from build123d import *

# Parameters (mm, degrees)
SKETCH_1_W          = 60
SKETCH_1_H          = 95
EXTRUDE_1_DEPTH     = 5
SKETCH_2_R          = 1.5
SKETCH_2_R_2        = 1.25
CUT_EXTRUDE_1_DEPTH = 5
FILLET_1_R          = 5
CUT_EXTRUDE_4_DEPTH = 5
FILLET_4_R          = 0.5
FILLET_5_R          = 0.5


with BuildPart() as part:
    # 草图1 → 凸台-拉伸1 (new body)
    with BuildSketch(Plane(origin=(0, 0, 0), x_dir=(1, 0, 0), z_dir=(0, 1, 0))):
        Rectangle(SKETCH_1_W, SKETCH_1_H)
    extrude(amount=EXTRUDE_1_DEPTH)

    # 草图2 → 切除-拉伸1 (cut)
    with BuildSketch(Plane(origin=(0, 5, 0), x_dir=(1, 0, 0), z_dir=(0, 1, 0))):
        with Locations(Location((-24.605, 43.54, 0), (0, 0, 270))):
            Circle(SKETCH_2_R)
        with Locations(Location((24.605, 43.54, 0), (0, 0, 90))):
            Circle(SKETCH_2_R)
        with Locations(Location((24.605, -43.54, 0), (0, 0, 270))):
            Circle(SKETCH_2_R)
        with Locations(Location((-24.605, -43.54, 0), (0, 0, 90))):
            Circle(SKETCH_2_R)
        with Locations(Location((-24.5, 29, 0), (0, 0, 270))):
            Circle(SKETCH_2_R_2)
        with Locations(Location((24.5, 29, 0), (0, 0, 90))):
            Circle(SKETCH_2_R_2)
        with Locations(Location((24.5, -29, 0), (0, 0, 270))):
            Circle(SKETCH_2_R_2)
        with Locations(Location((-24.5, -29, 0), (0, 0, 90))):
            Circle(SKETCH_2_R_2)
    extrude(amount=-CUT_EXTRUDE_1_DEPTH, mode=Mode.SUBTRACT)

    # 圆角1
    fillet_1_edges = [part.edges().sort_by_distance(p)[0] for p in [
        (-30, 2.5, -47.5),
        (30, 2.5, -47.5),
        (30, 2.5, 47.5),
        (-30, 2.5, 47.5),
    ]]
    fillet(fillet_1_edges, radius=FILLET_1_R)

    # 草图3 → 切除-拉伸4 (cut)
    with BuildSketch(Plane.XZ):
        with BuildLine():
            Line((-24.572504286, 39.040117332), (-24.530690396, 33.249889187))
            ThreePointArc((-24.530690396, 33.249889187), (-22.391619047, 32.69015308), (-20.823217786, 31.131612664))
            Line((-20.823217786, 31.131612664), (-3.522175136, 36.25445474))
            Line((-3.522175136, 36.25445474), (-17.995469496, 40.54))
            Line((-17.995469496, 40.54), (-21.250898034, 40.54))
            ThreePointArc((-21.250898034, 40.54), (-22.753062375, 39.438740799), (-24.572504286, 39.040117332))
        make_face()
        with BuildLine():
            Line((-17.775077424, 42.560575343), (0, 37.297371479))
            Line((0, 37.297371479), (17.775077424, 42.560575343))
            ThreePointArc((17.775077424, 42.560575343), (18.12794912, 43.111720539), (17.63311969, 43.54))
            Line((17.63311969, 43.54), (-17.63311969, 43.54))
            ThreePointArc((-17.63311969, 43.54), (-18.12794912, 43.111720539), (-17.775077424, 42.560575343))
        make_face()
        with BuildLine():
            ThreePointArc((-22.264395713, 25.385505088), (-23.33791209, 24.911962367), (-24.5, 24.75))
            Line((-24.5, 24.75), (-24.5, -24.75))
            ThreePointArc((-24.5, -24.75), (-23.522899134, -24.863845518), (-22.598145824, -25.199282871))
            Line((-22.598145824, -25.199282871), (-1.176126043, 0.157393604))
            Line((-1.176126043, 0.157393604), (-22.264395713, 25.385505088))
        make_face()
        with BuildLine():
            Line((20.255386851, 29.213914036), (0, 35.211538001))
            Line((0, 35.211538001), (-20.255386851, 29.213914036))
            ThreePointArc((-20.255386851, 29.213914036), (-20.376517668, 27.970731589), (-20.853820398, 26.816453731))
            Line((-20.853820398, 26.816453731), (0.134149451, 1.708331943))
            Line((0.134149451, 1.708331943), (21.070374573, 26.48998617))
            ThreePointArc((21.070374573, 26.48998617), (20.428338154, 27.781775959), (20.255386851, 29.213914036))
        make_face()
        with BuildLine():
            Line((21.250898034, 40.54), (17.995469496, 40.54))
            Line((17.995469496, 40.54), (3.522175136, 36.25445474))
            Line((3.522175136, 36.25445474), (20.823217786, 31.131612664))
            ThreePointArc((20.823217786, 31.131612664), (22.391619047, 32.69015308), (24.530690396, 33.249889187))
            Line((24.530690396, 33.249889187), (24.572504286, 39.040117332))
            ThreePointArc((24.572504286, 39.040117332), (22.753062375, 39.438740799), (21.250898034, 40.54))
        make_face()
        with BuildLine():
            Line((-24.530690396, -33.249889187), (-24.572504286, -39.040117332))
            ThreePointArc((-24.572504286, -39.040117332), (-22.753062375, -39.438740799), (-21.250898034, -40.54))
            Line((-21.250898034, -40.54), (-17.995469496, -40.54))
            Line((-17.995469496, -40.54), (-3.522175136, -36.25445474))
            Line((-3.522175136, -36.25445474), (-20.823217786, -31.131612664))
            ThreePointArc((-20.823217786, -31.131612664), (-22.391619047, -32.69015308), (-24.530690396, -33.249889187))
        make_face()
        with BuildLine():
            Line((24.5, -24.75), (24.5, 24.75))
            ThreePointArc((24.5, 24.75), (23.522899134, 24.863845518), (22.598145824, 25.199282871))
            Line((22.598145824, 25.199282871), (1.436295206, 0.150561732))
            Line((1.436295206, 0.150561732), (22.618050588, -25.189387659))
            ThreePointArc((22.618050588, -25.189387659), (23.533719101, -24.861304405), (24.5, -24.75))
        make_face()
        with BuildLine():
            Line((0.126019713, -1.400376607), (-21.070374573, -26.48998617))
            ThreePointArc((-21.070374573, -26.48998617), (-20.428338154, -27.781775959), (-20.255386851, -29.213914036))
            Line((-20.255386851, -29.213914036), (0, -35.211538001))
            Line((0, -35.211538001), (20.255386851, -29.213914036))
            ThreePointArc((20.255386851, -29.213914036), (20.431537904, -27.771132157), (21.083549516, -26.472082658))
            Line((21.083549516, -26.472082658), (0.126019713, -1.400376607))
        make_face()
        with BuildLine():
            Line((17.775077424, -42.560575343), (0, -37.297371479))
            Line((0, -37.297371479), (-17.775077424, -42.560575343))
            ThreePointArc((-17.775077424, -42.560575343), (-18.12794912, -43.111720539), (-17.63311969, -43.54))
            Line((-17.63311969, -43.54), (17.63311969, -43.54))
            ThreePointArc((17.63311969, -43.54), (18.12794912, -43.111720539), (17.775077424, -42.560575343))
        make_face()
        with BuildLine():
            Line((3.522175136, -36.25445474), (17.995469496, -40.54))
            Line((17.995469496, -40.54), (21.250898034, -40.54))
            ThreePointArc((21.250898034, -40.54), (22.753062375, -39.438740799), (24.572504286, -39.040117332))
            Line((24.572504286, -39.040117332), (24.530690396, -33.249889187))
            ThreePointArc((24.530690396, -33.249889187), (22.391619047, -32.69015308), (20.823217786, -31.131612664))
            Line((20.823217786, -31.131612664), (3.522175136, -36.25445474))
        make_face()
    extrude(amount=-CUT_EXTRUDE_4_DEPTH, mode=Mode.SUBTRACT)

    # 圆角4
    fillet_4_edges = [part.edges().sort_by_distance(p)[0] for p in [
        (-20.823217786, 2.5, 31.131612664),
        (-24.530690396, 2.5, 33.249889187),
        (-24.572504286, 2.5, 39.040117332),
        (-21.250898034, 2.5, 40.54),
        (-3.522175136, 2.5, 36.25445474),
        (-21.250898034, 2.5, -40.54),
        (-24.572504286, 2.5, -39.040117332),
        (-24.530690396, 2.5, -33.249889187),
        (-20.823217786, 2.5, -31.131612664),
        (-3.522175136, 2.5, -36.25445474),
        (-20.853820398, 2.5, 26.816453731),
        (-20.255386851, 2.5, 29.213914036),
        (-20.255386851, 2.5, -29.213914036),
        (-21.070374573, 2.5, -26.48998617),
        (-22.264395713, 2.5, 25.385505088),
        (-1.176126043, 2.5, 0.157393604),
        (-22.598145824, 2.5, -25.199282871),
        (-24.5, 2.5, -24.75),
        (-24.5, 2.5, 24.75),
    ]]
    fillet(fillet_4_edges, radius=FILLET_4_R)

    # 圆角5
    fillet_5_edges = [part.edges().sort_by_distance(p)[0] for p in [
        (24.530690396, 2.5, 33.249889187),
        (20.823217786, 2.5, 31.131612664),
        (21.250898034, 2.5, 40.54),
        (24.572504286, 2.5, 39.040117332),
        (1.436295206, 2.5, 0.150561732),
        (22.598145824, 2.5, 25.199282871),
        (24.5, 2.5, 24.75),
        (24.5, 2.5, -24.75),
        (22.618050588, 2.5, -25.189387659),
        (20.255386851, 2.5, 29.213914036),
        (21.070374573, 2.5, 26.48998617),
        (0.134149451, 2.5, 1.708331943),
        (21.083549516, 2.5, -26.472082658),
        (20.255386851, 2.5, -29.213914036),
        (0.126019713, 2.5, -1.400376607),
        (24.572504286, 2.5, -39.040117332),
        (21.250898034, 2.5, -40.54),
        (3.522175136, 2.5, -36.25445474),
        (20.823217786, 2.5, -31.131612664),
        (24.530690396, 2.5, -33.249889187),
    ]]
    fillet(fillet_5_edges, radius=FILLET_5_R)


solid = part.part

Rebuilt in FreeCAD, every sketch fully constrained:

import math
import FreeCAD as App
import Part
import Sketcher
from FreeCAD import Vector
Q = App.Units.Quantity


def edges_at(feature, points):
    """Names of the edges that pass closest to the given points."""
    edges = feature.Shape.Edges
    near = lambda p: min(range(len(edges)), key=lambda i: edges[i].distToShape(Part.Vertex(*p))[0])
    return sorted({f"Edge{near(p) + 1}" for p in points})


def add_polygon(sketch, points):
    """Adds a closed chain of lines whose ends are joined by coincident constraints."""
    first, n = sketch.GeometryCount, len(points)
    for a, b in zip(points, points[1:] + points[:1]):
        sketch.addGeometry(Part.LineSegment(App.Vector(*a, 0), App.Vector(*b, 0)), False)
    for i in range(n):
        sketch.addConstraint(Sketcher.Constraint("Coincident", first + i, 2, first + (i + 1) % n, 1))

doc = App.newDocument("Part")
body = doc.addObject("PartDesign::Body", "Body")

# Sketch on XZ plane
sketch1 = body.newObject("Sketcher::SketchObject", "Sketch")
sketch1.AttachmentSupport = (doc.getObject("XZ_Plane"), [""])
sketch1.MapMode = "FlatFace"
add_polygon(sketch1, [(-30, -47.5), (-30, 47.5), (30, 47.5), (30, -47.5)])  # lines 0-3
sketch1.addConstraint([
    Sketcher.Constraint("Vertical", 0),
    Sketcher.Constraint("Horizontal", 1),
    Sketcher.Constraint("Vertical", 2),
    Sketcher.Constraint("Horizontal", 3),
    Sketcher.Constraint("Symmetric", 0, 2, 2, 2, -1, 1),
    Sketcher.Constraint("DistanceX", 1, 1, 1, 2, Q("60 mm")),
    Sketcher.Constraint("DistanceY", 0, 1, 0, 2, Q("95 mm")),
])
pad1 = body.newObject("PartDesign::Pad", "Pad")
pad1.Profile = sketch1
pad1.Length = 5
pad1.Reversed = True

# Sketch on XZ plane
sketch2 = body.newObject("Sketcher::SketchObject", "Sketch001")
sketch2.AttachmentSupport = (doc.getObject("XZ_Plane"), [""])
sketch2.MapMode = "FlatFace"
sketch2.AttachmentOffset = App.Placement(Vector(0, 0, -5), App.Rotation())
sketch2.addGeometry([
    Part.Circle(Vector(-24.605, -43.54, 0), Vector(0, 0, 1), 1.5),  # 0
    Part.Circle(Vector(24.605, -43.54, 0), Vector(0, 0, 1), 1.5),  # 1
    Part.Circle(Vector(24.605, 43.54, 0), Vector(0, 0, 1), 1.5),  # 2
    Part.Circle(Vector(-24.605, 43.54, 0), Vector(0, 0, 1), 1.5),  # 3
    Part.Circle(Vector(-24.5, -29, 0), Vector(0, 0, 1), 1.25),  # 4
    Part.Circle(Vector(24.5, -29, 0), Vector(0, 0, 1), 1.25),  # 5
    Part.Circle(Vector(24.5, 29, 0), Vector(0, 0, 1), 1.25),  # 6
    Part.Circle(Vector(-24.5, 29, 0), Vector(0, 0, 1), 1.25),  # 7
], False)
sketch2.addConstraint([
    Sketcher.Constraint("Equal", 0, 1),
    Sketcher.Constraint("Equal", 1, 2),
    Sketcher.Constraint("Equal", 2, 3),
    Sketcher.Constraint("Equal", 4, 5),
    Sketcher.Constraint("Equal", 5, 6),
    Sketcher.Constraint("Equal", 6, 7),
    Sketcher.Constraint("Symmetric", 0, 3, 2, 3, -1, 1),
    Sketcher.Constraint("Symmetric", 1, 3, 3, 3, -1, 1),
    Sketcher.Constraint("Symmetric", 4, 3, 6, 3, -1, 1),
    Sketcher.Constraint("Symmetric", 5, 3, 7, 3, -1, 1),
    Sketcher.Constraint("Symmetric", 0, 3, 1, 3, -2),
    Sketcher.Constraint("Symmetric", 4, 3, 5, 3, -2),
    Sketcher.Constraint("Diameter", 0, Q("3 mm")),
    Sketcher.Constraint("Diameter", 4, Q("2.5 mm")),
    Sketcher.Constraint("DistanceY", 4, 3, -1, 1, Q("29 mm")),
    Sketcher.Constraint("DistanceX", 4, 3, 5, 3, Q("49 mm")),
    Sketcher.Constraint("DistanceY", 0, 3, -1, 1, Q("43.54 mm")),
    Sketcher.Constraint("DistanceX", 0, 3, 1, 3, Q("49.21 mm")),
])
pocket1 = body.newObject("PartDesign::Pocket", "Pocket")
pocket1.Profile = sketch2
pocket1.Length = 5
pocket1.Reversed = True
doc.recompute()

fillet = body.newObject("PartDesign::Fillet", "Fillet")
fillet.Base = (pocket1, edges_at(pocket1, [
    (-30, 2.5, -47.5),
    (30, 2.5, -47.5),
    (30, 2.5, 47.5),
    (-30, 2.5, 47.5),
]))
fillet.Radius = 5

# Sketch on XZ plane
sketch3 = body.newObject("Sketcher::SketchObject", "Sketch002")
sketch3.AttachmentSupport = (doc.getObject("XZ_Plane"), [""])
sketch3.MapMode = "FlatFace"
sketch3.addGeometry([
    Part.LineSegment(Vector(-24.572504, 39.040117, 0), Vector(-24.53069, 33.249889, 0)),  # 0
    Part.ArcOfCircle(Part.Circle(Vector(-24.5, 29, 0), Vector(0, 0, 1), 4.25), math.radians(30.102992), math.radians(90.413752)),  # 1
    Part.LineSegment(Vector(-20.823218, 31.131613, 0), Vector(-3.522175, 36.254455, 0)),  # 2
    Part.LineSegment(Vector(-3.522175, 36.254455, 0), Vector(-17.995469, 40.54, 0)),  # 3
    Part.LineSegment(Vector(-17.995469, 40.54, 0), Vector(-21.250898, 40.54, 0)),  # 4
    Part.ArcOfCircle(Part.Circle(Vector(-24.605, 43.54, 0), Vector(0, 0, 1), 4.5), math.radians(-89.586248), math.radians(-41.810315)),  # 5
    Part.LineSegment(Vector(-17.775077, 42.560575, 0), Vector(0, 37.297371, 0)),  # 6
    Part.LineSegment(Vector(0, 37.297371, 0), Vector(17.775077, 42.560575, 0)),  # 7
    Part.ArcOfCircle(Part.Circle(Vector(17.63312, 43.04, 0), Vector(0, 0, 1), 0.5), math.radians(-73.505968), math.radians(90)),  # 8
    Part.LineSegment(Vector(17.63312, 43.54, 0), Vector(-17.63312, 43.54, 0)),  # 9
    Part.ArcOfCircle(Part.Circle(Vector(-17.63312, 43.04, 0), Vector(0, 0, 1), 0.5), math.radians(90), math.radians(253.505968)),  # 10
    Part.ArcOfCircle(Part.Circle(Vector(-24.5, 29, 0), Vector(0, 0, 1), 4.25), math.radians(-90), math.radians(-58.26276)),  # 11
    Part.LineSegment(Vector(-24.5, 24.75, 0), Vector(-24.5, -24.75, 0)),  # 12
    Part.ArcOfCircle(Part.Circle(Vector(-24.5, -29, 0), Vector(0, 0, 1), 4.25), math.radians(63.416915), math.radians(90)),  # 13
    Part.LineSegment(Vector(-22.598146, -25.199283, 0), Vector(-1.176126, 0.157394, 0)),  # 14
    Part.LineSegment(Vector(-1.176126, 0.157394, 0), Vector(-22.264396, 25.385505, 0)),  # 15
    Part.LineSegment(Vector(20.255387, 29.213914, 0), Vector(0, 35.211538, 0)),  # 16
    Part.LineSegment(Vector(0, 35.211538, 0), Vector(-20.255387, 29.213914, 0)),  # 17
    Part.ArcOfCircle(Part.Circle(Vector(-24.5, 29, 0), Vector(0, 0, 1), 4.25), math.radians(-30.915649), math.radians(2.885071)),  # 18
    Part.LineSegment(Vector(-20.85382, 26.816454, 0), Vector(0.134149, 1.708332, 0)),  # 19
    Part.LineSegment(Vector(0.134149, 1.708332, 0), Vector(21.070375, 26.489986, 0)),  # 20
    Part.ArcOfCircle(Part.Circle(Vector(24.5, 29, 0), Vector(0, 0, 1), 4.25), math.radians(177.114929), math.radians(216.198993)),  # 21
    Part.LineSegment(Vector(21.250898, 40.54, 0), Vector(17.995469, 40.54, 0)),  # 22
    Part.LineSegment(Vector(17.995469, 40.54, 0), Vector(3.522175, 36.254455, 0)),  # 23
    Part.LineSegment(Vector(3.522175, 36.254455, 0), Vector(20.823218, 31.131613, 0)),  # 24
    Part.ArcOfCircle(Part.Circle(Vector(24.5, 29, 0), Vector(0, 0, 1), 4.25), math.radians(89.586248), math.radians(149.897008)),  # 25
    Part.LineSegment(Vector(24.53069, 33.249889, 0), Vector(24.572504, 39.040117, 0)),  # 26
    Part.ArcOfCircle(Part.Circle(Vector(24.605, 43.54, 0), Vector(0, 0, 1), 4.5), math.radians(-138.189685), math.radians(-90.413752)),  # 27
    Part.LineSegment(Vector(-24.53069, -33.249889, 0), Vector(-24.572504, -39.040117, 0)),  # 28
    Part.ArcOfCircle(Part.Circle(Vector(-24.605, -43.54, 0), Vector(0, 0, 1), 4.5), math.radians(41.810315), math.radians(89.586248)),  # 29
    Part.LineSegment(Vector(-21.250898, -40.54, 0), Vector(-17.995469, -40.54, 0)),  # 30
    Part.LineSegment(Vector(-17.995469, -40.54, 0), Vector(-3.522175, -36.254455, 0)),  # 31
    Part.LineSegment(Vector(-3.522175, -36.254455, 0), Vector(-20.823218, -31.131613, 0)),  # 32
    Part.ArcOfCircle(Part.Circle(Vector(-24.5, -29, 0), Vector(0, 0, 1), 4.25), math.radians(-90.413752), math.radians(-30.102992)),  # 33
    Part.LineSegment(Vector(24.5, -24.75, 0), Vector(24.5, 24.75, 0)),  # 34
    Part.ArcOfCircle(Part.Circle(Vector(24.5, 29, 0), Vector(0, 0, 1), 4.25), math.radians(-116.583085), math.radians(-90)),  # 35
    Part.LineSegment(Vector(22.598146, 25.199283, 0), Vector(1.436295, 0.150562, 0)),  # 36
    Part.LineSegment(Vector(1.436295, 0.150562, 0), Vector(22.618051, -25.189388, 0)),  # 37
    Part.ArcOfCircle(Part.Circle(Vector(24.5, -29, 0), Vector(0, 0, 1), 4.25), math.radians(90), math.radians(116.283412)),  # 38
    Part.LineSegment(Vector(0.12602, -1.400377, 0), Vector(-21.070375, -26.489986, 0)),  # 39
    Part.ArcOfCircle(Part.Circle(Vector(-24.5, -29, 0), Vector(0, 0, 1), 4.25), math.radians(-2.885071), math.radians(36.198993)),  # 40
    Part.LineSegment(Vector(-20.255387, -29.213914, 0), Vector(0, -35.211538, 0)),  # 41
    Part.LineSegment(Vector(0, -35.211538, 0), Vector(20.255387, -29.213914, 0)),  # 42
    Part.ArcOfCircle(Part.Circle(Vector(24.5, -29, 0), Vector(0, 0, 1), 4.25), math.radians(143.501333), math.radians(182.885071)),  # 43
    Part.LineSegment(Vector(21.08355, -26.472083, 0), Vector(0.12602, -1.400377, 0)),  # 44
    Part.LineSegment(Vector(17.775077, -42.560575, 0), Vector(0, -37.297371, 0)),  # 45
    Part.LineSegment(Vector(0, -37.297371, 0), Vector(-17.775077, -42.560575, 0)),  # 46
    Part.ArcOfCircle(Part.Circle(Vector(-17.63312, -43.04, 0), Vector(0, 0, 1), 0.5), math.radians(106.494032), math.radians(270)),  # 47
    Part.LineSegment(Vector(-17.63312, -43.54, 0), Vector(17.63312, -43.54, 0)),  # 48
    Part.ArcOfCircle(Part.Circle(Vector(17.63312, -43.04, 0), Vector(0, 0, 1), 0.5), math.radians(-90), math.radians(73.505968)),  # 49
    Part.LineSegment(Vector(3.522175, -36.254455, 0), Vector(17.995469, -40.54, 0)),  # 50
    Part.LineSegment(Vector(17.995469, -40.54, 0), Vector(21.250898, -40.54, 0)),  # 51
    Part.ArcOfCircle(Part.Circle(Vector(24.605, -43.54, 0), Vector(0, 0, 1), 4.5), math.radians(90.413752), math.radians(138.189685)),  # 52
    Part.LineSegment(Vector(24.572504, -39.040117, 0), Vector(24.53069, -33.249889, 0)),  # 53
    Part.ArcOfCircle(Part.Circle(Vector(24.5, -29, 0), Vector(0, 0, 1), 4.25), math.radians(-149.897008), math.radians(-89.586248)),  # 54
    Part.LineSegment(Vector(20.823218, -31.131613, 0), Vector(3.522175, -36.254455, 0)),  # 55
], False)
sketch3.addConstraint([
    Sketcher.Constraint("Coincident", 0, 2, 1, 2),
    Sketcher.Constraint("Coincident", 1, 1, 2, 1),
    Sketcher.Constraint("Coincident", 2, 2, 3, 1),
    Sketcher.Constraint("Coincident", 3, 2, 4, 1),
    Sketcher.Constraint("Coincident", 4, 2, 5, 2),
    Sketcher.Constraint("Coincident", 5, 1, 0, 1),
    Sketcher.Constraint("Coincident", 6, 2, 7, 1),
    Sketcher.Constraint("Tangent", 7, 2, 8, 1),
    Sketcher.Constraint("Tangent", 8, 2, 9, 1),
    Sketcher.Constraint("Tangent", 9, 2, 10, 1),
    Sketcher.Constraint("Tangent", 10, 2, 6, 1),
    Sketcher.Constraint("Coincident", 11, 1, 12, 1),
    Sketcher.Constraint("Coincident", 12, 2, 13, 2),
    Sketcher.Constraint("Coincident", 13, 1, 14, 1),
    Sketcher.Constraint("Coincident", 14, 2, 15, 1),
    Sketcher.Constraint("Coincident", 15, 2, 11, 2),
    Sketcher.Constraint("Coincident", 16, 2, 17, 1),
    Sketcher.Constraint("Coincident", 17, 2, 18, 2),
    Sketcher.Constraint("Coincident", 18, 1, 19, 1),
    Sketcher.Constraint("Coincident", 19, 2, 20, 1),
    Sketcher.Constraint("Coincident", 20, 2, 21, 2),
    Sketcher.Constraint("Coincident", 21, 1, 16, 1),
    Sketcher.Constraint("Coincident", 22, 2, 23, 1),
    Sketcher.Constraint("Coincident", 23, 2, 24, 1),
    Sketcher.Constraint("Coincident", 24, 2, 25, 2),
    Sketcher.Constraint("Coincident", 25, 1, 26, 1),
    Sketcher.Constraint("Coincident", 26, 2, 27, 2),
    Sketcher.Constraint("Coincident", 27, 1, 22, 1),
    Sketcher.Constraint("Coincident", 28, 2, 29, 2),
    Sketcher.Constraint("Coincident", 29, 1, 30, 1),
    Sketcher.Constraint("Coincident", 30, 2, 31, 1),
    Sketcher.Constraint("Coincident", 31, 2, 32, 1),
    Sketcher.Constraint("Coincident", 32, 2, 33, 2),
    Sketcher.Constraint("Coincident", 33, 1, 28, 1),
    Sketcher.Constraint("Coincident", 34, 2, 35, 2),
    Sketcher.Constraint("Coincident", 35, 1, 36, 1),
    Sketcher.Constraint("Coincident", 36, 2, 37, 1),
    Sketcher.Constraint("Coincident", 37, 2, 38, 2),
    Sketcher.Constraint("Coincident", 38, 1, 34, 1),
    Sketcher.Constraint("Coincident", 39, 2, 40, 2),
    Sketcher.Constraint("Coincident", 40, 1, 41, 1),
    Sketcher.Constraint("Coincident", 41, 2, 42, 1),
    Sketcher.Constraint("Coincident", 42, 2, 43, 2),
    Sketcher.Constraint("Coincident", 43, 1, 44, 1),
    Sketcher.Constraint("Coincident", 44, 2, 39, 1),
    Sketcher.Constraint("Coincident", 45, 2, 46, 1),
    Sketcher.Constraint("Tangent", 46, 2, 47, 1),
    Sketcher.Constraint("Tangent", 47, 2, 48, 1),
    Sketcher.Constraint("Tangent", 48, 2, 49, 1),
    Sketcher.Constraint("Tangent", 49, 2, 45, 1),
    Sketcher.Constraint("Coincident", 50, 2, 51, 1),
    Sketcher.Constraint("Coincident", 51, 2, 52, 2),
    Sketcher.Constraint("Coincident", 52, 1, 53, 1),
    Sketcher.Constraint("Coincident", 53, 2, 54, 2),
    Sketcher.Constraint("Coincident", 54, 1, 55, 1),
    Sketcher.Constraint("Coincident", 55, 2, 50, 1),
    Sketcher.Constraint("Horizontal", 4),
    Sketcher.Constraint("Horizontal", 9),
    Sketcher.Constraint("Vertical", 12),
    Sketcher.Constraint("Horizontal", 22),
    Sketcher.Constraint("Horizontal", 30),
    Sketcher.Constraint("Vertical", 34),
    Sketcher.Constraint("Horizontal", 48),
    Sketcher.Constraint("Horizontal", 51),
    Sketcher.Constraint("Coincident", 11, 3, 1, 3),
    Sketcher.Constraint("Coincident", 18, 3, 1, 3),
    Sketcher.Constraint("Coincident", 25, 3, 21, 3),
    Sketcher.Constraint("Coincident", 33, 3, 13, 3),
    Sketcher.Constraint("Coincident", 35, 3, 21, 3),
    Sketcher.Constraint("Coincident", 40, 3, 13, 3),
    Sketcher.Constraint("Coincident", 43, 3, 38, 3),
    Sketcher.Constraint("Coincident", 54, 3, 38, 3),
    Sketcher.Constraint("Equal", 8, 10),
    Sketcher.Constraint("Equal", 1, 11),
    Sketcher.Constraint("Equal", 11, 13),
    Sketcher.Constraint("Equal", 13, 18),
    Sketcher.Constraint("Equal", 18, 21),
    Sketcher.Constraint("Equal", 21, 25),
    Sketcher.Constraint("Equal", 5, 27),
    Sketcher.Constraint("Equal", 27, 29),
    Sketcher.Constraint("Equal", 25, 33),
    Sketcher.Constraint("Equal", 33, 35),
    Sketcher.Constraint("Equal", 35, 38),
    Sketcher.Constraint("Equal", 38, 40),
    Sketcher.Constraint("Equal", 40, 43),
    Sketcher.Constraint("Equal", 10, 47),
    Sketcher.Constraint("Equal", 47, 49),
    Sketcher.Constraint("Equal", 29, 52),
    Sketcher.Constraint("Equal", 43, 54),
    Sketcher.Constraint("Symmetric", 13, 3, 21, 3, -1, 1),
    Sketcher.Constraint("Symmetric", 27, 3, 29, 3, -1, 1),
    Sketcher.Constraint("Symmetric", 1, 3, 38, 3, -1, 1),
    Sketcher.Constraint("Symmetric", 8, 3, 47, 3, -1, 1),
    Sketcher.Constraint("Symmetric", 5, 3, 52, 3, -1, 1),
    Sketcher.Constraint("Symmetric", 22, 2, 30, 2, -1, 1),
    Sketcher.Constraint("Symmetric", 23, 2, 31, 2, -1, 1),
    Sketcher.Constraint("Symmetric", 16, 2, 41, 2, -1, 1),
    Sketcher.Constraint("Symmetric", 6, 2, 45, 2, -1, 1),
    Sketcher.Constraint("Symmetric", 3, 2, 50, 2, -1, 1),
    Sketcher.Constraint("Symmetric", 2, 2, 55, 2, -1, 1),
    Sketcher.Constraint("Symmetric", 1, 3, 21, 3, -2),
    Sketcher.Constraint("Symmetric", 5, 3, 27, 3, -2),
    Sketcher.Constraint("Symmetric", 3, 2, 22, 2, -2),
    Sketcher.Constraint("Symmetric", 2, 2, 23, 2, -2),
    Sketcher.Constraint("PointOnObject", 6, 2, -2),
    Sketcher.Constraint("PointOnObject", 16, 2, -2),
    Sketcher.Constraint("Parallel", 3, 6),
    Sketcher.Constraint("Parallel", 2, 7),
    Sketcher.Constraint("Parallel", 6, 16),
    Sketcher.Constraint("Parallel", 7, 17),
    Sketcher.Constraint("Parallel", 15, 19),
    Sketcher.Constraint("Parallel", 14, 20),
    Sketcher.Constraint("Parallel", 17, 23),
    Sketcher.Constraint("Parallel", 16, 24),
    Sketcher.Constraint("Parallel", 26, 28),
    Sketcher.Constraint("Parallel", 24, 32),
    Sketcher.Constraint("Parallel", 20, 36),
    Sketcher.Constraint("Parallel", 19, 37),
    Sketcher.Constraint("Parallel", 36, 39),
    Sketcher.Constraint("Parallel", 32, 41),
    Sketcher.Constraint("Parallel", 31, 42),
    Sketcher.Constraint("Parallel", 37, 44),
    Sketcher.Constraint("Parallel", 41, 45),
    Sketcher.Constraint("Parallel", 0, 53),
    Sketcher.Constraint("Parallel", 46, 55),
    Sketcher.Constraint("Horizontal", 27, 3, 8, 2),
    Sketcher.Constraint("Horizontal", 0, 2, 25, 1),
    Sketcher.Constraint("Horizontal", 5, 1, 26, 2),
    Sketcher.Constraint("Horizontal", 28, 2, 52, 1),
    Sketcher.Constraint("Vertical", 40, 3, 11, 1),
    Sketcher.Constraint("Vertical", 5, 1, 28, 2),
    Sketcher.Constraint("Vertical", 54, 3, 34, 2),
    Sketcher.Constraint("Radius", 5, Q("4.5 mm")),
    Sketcher.Constraint("Radius", 8, Q("0.5 mm")),
    Sketcher.Constraint("Radius", 1, Q("4.25 mm")),
    Sketcher.Constraint("DistanceY", 12, 2, 12, 1, Q("49.5 mm")),
    Sketcher.Constraint("DistanceX", 1, 3, -1, 1, Q("24.5 mm")),
    Sketcher.Constraint("DistanceY", -1, 1, 5, 3, Q("43.54 mm")),
    Sketcher.Constraint("DistanceY", -1, 1, 3, 2, Q("40.54 mm")),
    Sketcher.Constraint("DistanceX", 5, 3, -1, 1, Q("24.605 mm")),
    Sketcher.Constraint("Distance", 19, Q("32.724802 mm")),
    Sketcher.Constraint("DistanceX", 4, 2, 4, 1, Q("3.255429 mm")),
    Sketcher.Constraint("DistanceX", 9, 2, 9, 1, Q("35.266239 mm")),
    Sketcher.Constraint("Distance", 3, Q("15.094441 mm")),
    Sketcher.Constraint("Distance", 15, Q("32.881191 mm")),
    Sketcher.Constraint("Distance", 39, Q("32.84472 mm")),
    Sketcher.Constraint("Distance", 44, Q("32.677339 mm")),
    Sketcher.Constraint("DistanceX", 0, 2, -1, 1, Q("24.53069 mm")),
    Sketcher.Constraint("DistanceY", -1, 1, 6, 2, Q("37.297371 mm")),
    Sketcher.Constraint("DistanceY", -1, 1, 16, 2, Q("35.211538 mm")),
    Sketcher.Constraint("DistanceX", 18, 1, -1, 1, Q("20.85382 mm")),
    Sketcher.Constraint("DistanceX", -1, 1, 19, 2, Q("0.134149 mm")),
    Sketcher.Constraint("DistanceY", -1, 1, 36, 2, Q("0.150562 mm")),
    Sketcher.Constraint("DistanceX", -1, 1, 37, 2, Q("22.618051 mm")),
    Sketcher.Constraint("DistanceX", -1, 1, 43, 1, Q("21.08355 mm")),
    Sketcher.Constraint("Distance", 14, Q("33.194336 mm")),
    Sketcher.Constraint("DistanceX", 5, 1, -1, 1, Q("24.572504 mm")),
])
pocket2 = body.newObject("PartDesign::Pocket", "Pocket001")
pocket2.Profile = sketch3
pocket2.Length = 5
doc.recompute()

fillet2 = body.newObject("PartDesign::Fillet", "Fillet001")
fillet2.Base = (pocket2, edges_at(pocket2, [
    (-20.823, 2.5, 31.132),
    (-24.531, 2.5, 33.25),
    (-24.573, 2.5, 39.04),
    (-21.251, 2.5, 40.54),
    (-3.522, 2.5, 36.254),
    (-21.251, 2.5, -40.54),
    (-24.573, 2.5, -39.04),
    (-24.531, 2.5, -33.25),
    (-20.823, 2.5, -31.132),
    (-3.522, 2.5, -36.254),
    (-20.854, 2.5, 26.816),
    (-20.255, 2.5, 29.214),
    (-20.255, 2.5, -29.214),
    (-21.07, 2.5, -26.49),
    (-22.264, 2.5, 25.386),
    (-1.176, 2.5, 0.157),
    (-22.598, 2.5, -25.199),
    (-24.5, 2.5, -24.75),
    (-24.5, 2.5, 24.75),
]))
fillet2.Radius = 0.5
doc.recompute()

fillet3 = body.newObject("PartDesign::Fillet", "Fillet002")
fillet3.Base = (fillet2, edges_at(fillet2, [
    (24.531, 2.5, 33.25),
    (20.823, 2.5, 31.132),
    (21.251, 2.5, 40.54),
    (24.573, 2.5, 39.04),
    (1.436, 2.5, 0.151),
    (22.598, 2.5, 25.199),
    (24.5, 2.5, 24.75),
    (24.5, 2.5, -24.75),
    (22.618, 2.5, -25.189),
    (20.255, 2.5, 29.214),
    (21.07, 2.5, 26.49),
    (0.134, 2.5, 1.708),
    (21.084, 2.5, -26.472),
    (20.255, 2.5, -29.214),
    (0.126, 2.5, -1.4),
    (24.573, 2.5, -39.04),
    (21.251, 2.5, -40.54),
    (3.522, 2.5, -36.254),
    (20.823, 2.5, -31.132),
    (24.531, 2.5, -33.25),
]))
fillet3.Radius = 0.5

doc.recompute()
